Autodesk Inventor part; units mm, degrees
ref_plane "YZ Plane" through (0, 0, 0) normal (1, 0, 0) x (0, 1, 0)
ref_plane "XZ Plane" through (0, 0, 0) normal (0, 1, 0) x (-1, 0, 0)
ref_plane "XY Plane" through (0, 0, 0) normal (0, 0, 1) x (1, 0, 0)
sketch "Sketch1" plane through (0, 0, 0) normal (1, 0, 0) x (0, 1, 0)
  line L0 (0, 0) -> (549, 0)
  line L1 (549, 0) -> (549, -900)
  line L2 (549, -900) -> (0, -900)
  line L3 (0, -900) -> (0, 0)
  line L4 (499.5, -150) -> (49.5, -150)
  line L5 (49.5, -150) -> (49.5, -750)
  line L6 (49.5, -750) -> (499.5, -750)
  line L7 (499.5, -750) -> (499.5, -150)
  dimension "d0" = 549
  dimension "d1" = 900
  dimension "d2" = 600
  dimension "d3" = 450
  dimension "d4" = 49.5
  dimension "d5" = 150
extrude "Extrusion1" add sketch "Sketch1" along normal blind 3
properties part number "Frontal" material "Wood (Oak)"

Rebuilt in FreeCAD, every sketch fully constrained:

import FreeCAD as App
import Part
import Sketcher

V = App.Vector

doc = App.newDocument("Part")
params = doc.addObject("Spreadsheet::Sheet", "Params")
for row, (alias, value) in enumerate([
    ("sketch1_width", "549 mm"),
    ("sketch1_width2", "450 mm"),
    ("sketch1_height", "900 mm"),
    ("sketch1_height2", "600 mm"),
    ("pad1_length", "3 mm"),
], start=1):
    params.set(f"A{row}", alias)
    params.set(f"B{row}", "=" + value)
    params.setAlias(f"B{row}", alias)

body = doc.addObject("PartDesign::Body", "Body")

# Sketch on YZ plane
sketch1 = doc.addObject("Sketcher::SketchObject", "Sketch")
body.addObject(sketch1)
sketch1.AttachmentSupport = (doc.YZ_Plane, [""])
sketch1.MapMode = "FlatFace"
sketch1.addGeometry([
    Part.LineSegment(V(549, 0, 0), V(0, 0, 0)),  # 0
    Part.LineSegment(V(0, 0, 0), V(0, -900, 0)),  # 1
    Part.LineSegment(V(0, -900, 0), V(549, -900, 0)),  # 2
    Part.LineSegment(V(549, -900, 0), V(549, 0, 0)),  # 3
    Part.LineSegment(V(50, -150, 0), V(500, -150, 0)),  # 4
    Part.LineSegment(V(500, -150, 0), V(500, -750, 0)),  # 5
    Part.LineSegment(V(500, -750, 0), V(50, -750, 0)),  # 6
    Part.LineSegment(V(50, -750, 0), V(50, -150, 0)),  # 7
], False)
sketch1.addConstraint([
    Sketcher.Constraint("Coincident", 0, 2, 1, 1),
    Sketcher.Constraint("Coincident", 1, 2, 2, 1),
    Sketcher.Constraint("Coincident", 2, 2, 3, 1),
    Sketcher.Constraint("Coincident", 3, 2, 0, 1),
    Sketcher.Constraint("Coincident", 4, 2, 5, 1),
    Sketcher.Constraint("Coincident", 5, 2, 6, 1),
    Sketcher.Constraint("Coincident", 6, 2, 7, 1),
    Sketcher.Constraint("Coincident", 7, 2, 4, 1),
    Sketcher.Constraint("Horizontal", 0),
    Sketcher.Constraint("Vertical", 1),
    Sketcher.Constraint("Horizontal", 2),
    Sketcher.Constraint("Vertical", 3),
    Sketcher.Constraint("Horizontal", 4),
    Sketcher.Constraint("Vertical", 5),
    Sketcher.Constraint("Horizontal", 6),
    Sketcher.Constraint("Vertical", 7),
    Sketcher.Constraint("Coincident", 0, 2, -1, 1),
    Sketcher.Constraint("DistanceX", 0, 2, 0, 1, 549.0),
    Sketcher.Constraint("DistanceX", 4, 1, 4, 2, 450.0),
    Sketcher.Constraint("DistanceY", 1, 2, 1, 1, 900.0),
    Sketcher.Constraint("DistanceY", 5, 2, 5, 1, 600.0),
    Sketcher.Constraint("DistanceY", 4, 2, -1, 1, 150.0),
    Sketcher.Constraint("DistanceX", -1, 1, 6, 2, 49.5),
])
sketch1.setExpression("Constraints[17]", "Params.sketch1_width")
sketch1.setExpression("Constraints[18]", "Params.sketch1_width2")
sketch1.setExpression("Constraints[19]", "Params.sketch1_height")
sketch1.setExpression("Constraints[20]", "Params.sketch1_height2")
pad1 = doc.addObject("PartDesign::Pad", "Pad")
body.addObject(pad1)
pad1.Profile = sketch1
pad1.setExpression("Length", "Params.pad1_length")

doc.recompute()
